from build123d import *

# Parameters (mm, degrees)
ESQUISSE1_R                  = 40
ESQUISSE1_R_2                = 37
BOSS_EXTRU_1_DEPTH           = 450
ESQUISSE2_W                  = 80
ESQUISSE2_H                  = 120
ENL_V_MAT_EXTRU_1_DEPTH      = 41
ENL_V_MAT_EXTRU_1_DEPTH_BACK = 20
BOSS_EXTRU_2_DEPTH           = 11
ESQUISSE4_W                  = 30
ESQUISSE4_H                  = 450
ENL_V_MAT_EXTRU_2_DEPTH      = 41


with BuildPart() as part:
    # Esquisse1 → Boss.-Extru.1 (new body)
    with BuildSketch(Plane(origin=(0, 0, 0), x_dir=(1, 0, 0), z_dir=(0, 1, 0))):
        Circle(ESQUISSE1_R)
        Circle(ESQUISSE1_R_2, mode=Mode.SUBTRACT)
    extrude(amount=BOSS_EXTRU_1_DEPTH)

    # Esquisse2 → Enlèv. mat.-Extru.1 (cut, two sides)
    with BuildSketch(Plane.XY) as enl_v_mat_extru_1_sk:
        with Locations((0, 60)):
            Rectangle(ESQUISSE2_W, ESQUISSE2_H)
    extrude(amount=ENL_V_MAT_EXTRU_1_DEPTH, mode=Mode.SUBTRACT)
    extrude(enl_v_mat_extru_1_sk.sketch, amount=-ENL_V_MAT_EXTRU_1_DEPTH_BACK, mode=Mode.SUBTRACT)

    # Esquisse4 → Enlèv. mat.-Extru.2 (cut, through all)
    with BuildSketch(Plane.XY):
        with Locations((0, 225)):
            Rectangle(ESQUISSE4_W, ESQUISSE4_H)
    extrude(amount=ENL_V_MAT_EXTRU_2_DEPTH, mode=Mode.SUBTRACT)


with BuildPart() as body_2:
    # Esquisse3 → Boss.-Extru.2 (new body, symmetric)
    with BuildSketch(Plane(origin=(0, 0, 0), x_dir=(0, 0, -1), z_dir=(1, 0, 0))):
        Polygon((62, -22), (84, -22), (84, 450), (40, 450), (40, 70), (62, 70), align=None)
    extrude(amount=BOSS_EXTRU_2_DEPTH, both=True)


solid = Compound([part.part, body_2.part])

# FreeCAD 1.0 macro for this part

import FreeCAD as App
import Part
import Sketcher

doc = App.newDocument("Part")
body = doc.addObject("PartDesign::Body", "Body")

sketch1 = doc.addObject("Sketcher::SketchObject", "Sketch")
body.addObject(sketch1)
sketch1.AttachmentSupport = (doc.XZ_Plane, [""])
sketch1.MapMode = "FlatFace"
sketch1.addGeometry([
    Part.Circle(App.Vector(0, 0, 0), App.Vector(0, 0, 1), 40),
    Part.Circle(App.Vector(0, 0, 0), App.Vector(0, 0, 1), 37),
], False)
sketch1.addConstraint([
    Sketcher.Constraint("Coincident", 0, 3, -1, 1),
    Sketcher.Constraint("Coincident", 1, 3, -1, 1),
    Sketcher.Constraint("Diameter", 0, 80.0),
    Sketcher.Constraint("Diameter", 1, 74.0),
])
pad1 = doc.addObject("PartDesign::Pad", "Pad")
body.addObject(pad1)
pad1.Profile = sketch1
pad1.Length = 450
pad1.Reversed = True

sketch2 = doc.addObject("Sketcher::SketchObject", "Sketch001")
body.addObject(sketch2)
sketch2.AttachmentSupport = (doc.XY_Plane, [""])
sketch2.MapMode = "FlatFace"
sketch2.addGeometry([
    Part.LineSegment(App.Vector(-40, 120, 0), App.Vector(-40, 0, 0)),
    Part.LineSegment(App.Vector(-40, 0, 0), App.Vector(40, 0, 0)),
    Part.LineSegment(App.Vector(40, 0, 0), App.Vector(40, 120, 0)),
    Part.LineSegment(App.Vector(40, 120, 0), App.Vector(-40, 120, 0)),
], False)
sketch2.addConstraint([
    Sketcher.Constraint("Coincident", 0, 2, 1, 1),
    Sketcher.Constraint("Coincident", 1, 2, 2, 1),
    Sketcher.Constraint("Coincident", 2, 2, 3, 1),
    Sketcher.Constraint("Coincident", 3, 2, 0, 1),
    Sketcher.Constraint("Vertical", 0),
    Sketcher.Constraint("Horizontal", 1),
    Sketcher.Constraint("Vertical", 2),
    Sketcher.Constraint("Horizontal", 3),
    Sketcher.Constraint("Symmetric", 0, 2, 1, 2, -1, 1),
    Sketcher.Constraint("DistanceX", 1, 1, 1, 2, 80.0),
    Sketcher.Constraint("DistanceY", 0, 2, 0, 1, 120.0),
])
pocket1 = doc.addObject("PartDesign::Pocket", "Pocket")
body.addObject(pocket1)
pocket1.Profile = sketch2
pocket1.Type = "TwoLengths"
pocket1.Length = 41
pocket1.Length2 = 20
pocket1.Reversed = True

sketch3 = doc.addObject("Sketcher::SketchObject", "Sketch002")
body.addObject(sketch3)
sketch3.AttachmentSupport = (doc.XY_Plane, [""])
sketch3.MapMode = "FlatFace"
sketch3.addGeometry([
    Part.LineSegment(App.Vector(-15, 450, 0), App.Vector(-15, 0, 0)),
    Part.LineSegment(App.Vector(-15, 0, 0), App.Vector(15, 0, 0)),
    Part.LineSegment(App.Vector(15, 0, 0), App.Vector(15, 450, 0)),
    Part.LineSegment(App.Vector(15, 450, 0), App.Vector(-15, 450, 0)),
], False)
sketch3.addConstraint([
    Sketcher.Constraint("Coincident", 0, 2, 1, 1),
    Sketcher.Constraint("Coincident", 1, 2, 2, 1),
    Sketcher.Constraint("Coincident", 2, 2, 3, 1),
    Sketcher.Constraint("Coincident", 3, 2, 0, 1),
    Sketcher.Constraint("Vertical", 0),
    Sketcher.Constraint("Horizontal", 1),
    Sketcher.Constraint("Vertical", 2),
    Sketcher.Constraint("Horizontal", 3),
    Sketcher.Constraint("Symmetric", 0, 2, 1, 2, -1, 1),
    Sketcher.Constraint("DistanceX", 1, 1, 1, 2, 30.0),
    Sketcher.Constraint("DistanceY", 0, 2, 0, 1, 450.0),
])
pocket2 = doc.addObject("PartDesign::Pocket", "Pocket001")
body.addObject(pocket2)
pocket2.Profile = sketch3
pocket2.Type = "ThroughAll"
pocket2.Reversed = True
body2 = doc.addObject("PartDesign::Body", "Body001")

sketch4 = doc.addObject("Sketcher::SketchObject", "Sketch003")
body2.addObject(sketch4)
sketch4.AttachmentSupport = (doc.getObject("YZ_Plane001"), [""])
sketch4.MapMode = "FlatFace"
sketch4.addGeometry([
    Part.LineSegment(App.Vector(-22, -62, 0), App.Vector(-22, -84, 0)),
    Part.LineSegment(App.Vector(-22, -84, 0), App.Vector(450, -84, 0)),
    Part.LineSegment(App.Vector(450, -84, 0), App.Vector(450, -40, 0)),
    Part.LineSegment(App.Vector(450, -40, 0), App.Vector(70, -40, 0)),
    Part.LineSegment(App.Vector(70, -40, 0), App.Vector(70, -62, 0)),
    Part.LineSegment(App.Vector(70, -62, 0), App.Vector(-22, -62, 0)),
], False)
sketch4.addConstraint([
    Sketcher.Constraint("Coincident", 0, 2, 1, 1),
    Sketcher.Constraint("Coincident", 1, 2, 2, 1),
    Sketcher.Constraint("Coincident", 2, 2, 3, 1),
    Sketcher.Constraint("Coincident", 3, 2, 4, 1),
    Sketcher.Constraint("Coincident", 4, 2, 5, 1),
    Sketcher.Constraint("Coincident", 5, 2, 0, 1),
    Sketcher.Constraint("Vertical", 0),
    Sketcher.Constraint("Horizontal", 1),
    Sketcher.Constraint("Vertical", 2),
    Sketcher.Constraint("Horizontal", 3),
    Sketcher.Constraint("Vertical", 4),
    Sketcher.Constraint("Horizontal", 5),
    Sketcher.Constraint("Equal", 0, 4),
    Sketcher.Constraint("DistanceX", 1, 1, 1, 2, 472.0),
    Sketcher.Constraint("DistanceX", 3, 2, 3, 1, 380.0),
    Sketcher.Constraint("DistanceY", 0, 2, 0, 1, 22.0),
    Sketcher.Constraint("DistanceX", 0, 2, -1, 1, 22.0),
    Sketcher.Constraint("DistanceY", 0, 2, -1, 1, 84.0),
])
pad2 = doc.addObject("PartDesign::Pad", "Pad001")
body2.addObject(pad2)
pad2.Profile = sketch4
pad2.Length = 22
pad2.Midplane = True

doc.recompute()
